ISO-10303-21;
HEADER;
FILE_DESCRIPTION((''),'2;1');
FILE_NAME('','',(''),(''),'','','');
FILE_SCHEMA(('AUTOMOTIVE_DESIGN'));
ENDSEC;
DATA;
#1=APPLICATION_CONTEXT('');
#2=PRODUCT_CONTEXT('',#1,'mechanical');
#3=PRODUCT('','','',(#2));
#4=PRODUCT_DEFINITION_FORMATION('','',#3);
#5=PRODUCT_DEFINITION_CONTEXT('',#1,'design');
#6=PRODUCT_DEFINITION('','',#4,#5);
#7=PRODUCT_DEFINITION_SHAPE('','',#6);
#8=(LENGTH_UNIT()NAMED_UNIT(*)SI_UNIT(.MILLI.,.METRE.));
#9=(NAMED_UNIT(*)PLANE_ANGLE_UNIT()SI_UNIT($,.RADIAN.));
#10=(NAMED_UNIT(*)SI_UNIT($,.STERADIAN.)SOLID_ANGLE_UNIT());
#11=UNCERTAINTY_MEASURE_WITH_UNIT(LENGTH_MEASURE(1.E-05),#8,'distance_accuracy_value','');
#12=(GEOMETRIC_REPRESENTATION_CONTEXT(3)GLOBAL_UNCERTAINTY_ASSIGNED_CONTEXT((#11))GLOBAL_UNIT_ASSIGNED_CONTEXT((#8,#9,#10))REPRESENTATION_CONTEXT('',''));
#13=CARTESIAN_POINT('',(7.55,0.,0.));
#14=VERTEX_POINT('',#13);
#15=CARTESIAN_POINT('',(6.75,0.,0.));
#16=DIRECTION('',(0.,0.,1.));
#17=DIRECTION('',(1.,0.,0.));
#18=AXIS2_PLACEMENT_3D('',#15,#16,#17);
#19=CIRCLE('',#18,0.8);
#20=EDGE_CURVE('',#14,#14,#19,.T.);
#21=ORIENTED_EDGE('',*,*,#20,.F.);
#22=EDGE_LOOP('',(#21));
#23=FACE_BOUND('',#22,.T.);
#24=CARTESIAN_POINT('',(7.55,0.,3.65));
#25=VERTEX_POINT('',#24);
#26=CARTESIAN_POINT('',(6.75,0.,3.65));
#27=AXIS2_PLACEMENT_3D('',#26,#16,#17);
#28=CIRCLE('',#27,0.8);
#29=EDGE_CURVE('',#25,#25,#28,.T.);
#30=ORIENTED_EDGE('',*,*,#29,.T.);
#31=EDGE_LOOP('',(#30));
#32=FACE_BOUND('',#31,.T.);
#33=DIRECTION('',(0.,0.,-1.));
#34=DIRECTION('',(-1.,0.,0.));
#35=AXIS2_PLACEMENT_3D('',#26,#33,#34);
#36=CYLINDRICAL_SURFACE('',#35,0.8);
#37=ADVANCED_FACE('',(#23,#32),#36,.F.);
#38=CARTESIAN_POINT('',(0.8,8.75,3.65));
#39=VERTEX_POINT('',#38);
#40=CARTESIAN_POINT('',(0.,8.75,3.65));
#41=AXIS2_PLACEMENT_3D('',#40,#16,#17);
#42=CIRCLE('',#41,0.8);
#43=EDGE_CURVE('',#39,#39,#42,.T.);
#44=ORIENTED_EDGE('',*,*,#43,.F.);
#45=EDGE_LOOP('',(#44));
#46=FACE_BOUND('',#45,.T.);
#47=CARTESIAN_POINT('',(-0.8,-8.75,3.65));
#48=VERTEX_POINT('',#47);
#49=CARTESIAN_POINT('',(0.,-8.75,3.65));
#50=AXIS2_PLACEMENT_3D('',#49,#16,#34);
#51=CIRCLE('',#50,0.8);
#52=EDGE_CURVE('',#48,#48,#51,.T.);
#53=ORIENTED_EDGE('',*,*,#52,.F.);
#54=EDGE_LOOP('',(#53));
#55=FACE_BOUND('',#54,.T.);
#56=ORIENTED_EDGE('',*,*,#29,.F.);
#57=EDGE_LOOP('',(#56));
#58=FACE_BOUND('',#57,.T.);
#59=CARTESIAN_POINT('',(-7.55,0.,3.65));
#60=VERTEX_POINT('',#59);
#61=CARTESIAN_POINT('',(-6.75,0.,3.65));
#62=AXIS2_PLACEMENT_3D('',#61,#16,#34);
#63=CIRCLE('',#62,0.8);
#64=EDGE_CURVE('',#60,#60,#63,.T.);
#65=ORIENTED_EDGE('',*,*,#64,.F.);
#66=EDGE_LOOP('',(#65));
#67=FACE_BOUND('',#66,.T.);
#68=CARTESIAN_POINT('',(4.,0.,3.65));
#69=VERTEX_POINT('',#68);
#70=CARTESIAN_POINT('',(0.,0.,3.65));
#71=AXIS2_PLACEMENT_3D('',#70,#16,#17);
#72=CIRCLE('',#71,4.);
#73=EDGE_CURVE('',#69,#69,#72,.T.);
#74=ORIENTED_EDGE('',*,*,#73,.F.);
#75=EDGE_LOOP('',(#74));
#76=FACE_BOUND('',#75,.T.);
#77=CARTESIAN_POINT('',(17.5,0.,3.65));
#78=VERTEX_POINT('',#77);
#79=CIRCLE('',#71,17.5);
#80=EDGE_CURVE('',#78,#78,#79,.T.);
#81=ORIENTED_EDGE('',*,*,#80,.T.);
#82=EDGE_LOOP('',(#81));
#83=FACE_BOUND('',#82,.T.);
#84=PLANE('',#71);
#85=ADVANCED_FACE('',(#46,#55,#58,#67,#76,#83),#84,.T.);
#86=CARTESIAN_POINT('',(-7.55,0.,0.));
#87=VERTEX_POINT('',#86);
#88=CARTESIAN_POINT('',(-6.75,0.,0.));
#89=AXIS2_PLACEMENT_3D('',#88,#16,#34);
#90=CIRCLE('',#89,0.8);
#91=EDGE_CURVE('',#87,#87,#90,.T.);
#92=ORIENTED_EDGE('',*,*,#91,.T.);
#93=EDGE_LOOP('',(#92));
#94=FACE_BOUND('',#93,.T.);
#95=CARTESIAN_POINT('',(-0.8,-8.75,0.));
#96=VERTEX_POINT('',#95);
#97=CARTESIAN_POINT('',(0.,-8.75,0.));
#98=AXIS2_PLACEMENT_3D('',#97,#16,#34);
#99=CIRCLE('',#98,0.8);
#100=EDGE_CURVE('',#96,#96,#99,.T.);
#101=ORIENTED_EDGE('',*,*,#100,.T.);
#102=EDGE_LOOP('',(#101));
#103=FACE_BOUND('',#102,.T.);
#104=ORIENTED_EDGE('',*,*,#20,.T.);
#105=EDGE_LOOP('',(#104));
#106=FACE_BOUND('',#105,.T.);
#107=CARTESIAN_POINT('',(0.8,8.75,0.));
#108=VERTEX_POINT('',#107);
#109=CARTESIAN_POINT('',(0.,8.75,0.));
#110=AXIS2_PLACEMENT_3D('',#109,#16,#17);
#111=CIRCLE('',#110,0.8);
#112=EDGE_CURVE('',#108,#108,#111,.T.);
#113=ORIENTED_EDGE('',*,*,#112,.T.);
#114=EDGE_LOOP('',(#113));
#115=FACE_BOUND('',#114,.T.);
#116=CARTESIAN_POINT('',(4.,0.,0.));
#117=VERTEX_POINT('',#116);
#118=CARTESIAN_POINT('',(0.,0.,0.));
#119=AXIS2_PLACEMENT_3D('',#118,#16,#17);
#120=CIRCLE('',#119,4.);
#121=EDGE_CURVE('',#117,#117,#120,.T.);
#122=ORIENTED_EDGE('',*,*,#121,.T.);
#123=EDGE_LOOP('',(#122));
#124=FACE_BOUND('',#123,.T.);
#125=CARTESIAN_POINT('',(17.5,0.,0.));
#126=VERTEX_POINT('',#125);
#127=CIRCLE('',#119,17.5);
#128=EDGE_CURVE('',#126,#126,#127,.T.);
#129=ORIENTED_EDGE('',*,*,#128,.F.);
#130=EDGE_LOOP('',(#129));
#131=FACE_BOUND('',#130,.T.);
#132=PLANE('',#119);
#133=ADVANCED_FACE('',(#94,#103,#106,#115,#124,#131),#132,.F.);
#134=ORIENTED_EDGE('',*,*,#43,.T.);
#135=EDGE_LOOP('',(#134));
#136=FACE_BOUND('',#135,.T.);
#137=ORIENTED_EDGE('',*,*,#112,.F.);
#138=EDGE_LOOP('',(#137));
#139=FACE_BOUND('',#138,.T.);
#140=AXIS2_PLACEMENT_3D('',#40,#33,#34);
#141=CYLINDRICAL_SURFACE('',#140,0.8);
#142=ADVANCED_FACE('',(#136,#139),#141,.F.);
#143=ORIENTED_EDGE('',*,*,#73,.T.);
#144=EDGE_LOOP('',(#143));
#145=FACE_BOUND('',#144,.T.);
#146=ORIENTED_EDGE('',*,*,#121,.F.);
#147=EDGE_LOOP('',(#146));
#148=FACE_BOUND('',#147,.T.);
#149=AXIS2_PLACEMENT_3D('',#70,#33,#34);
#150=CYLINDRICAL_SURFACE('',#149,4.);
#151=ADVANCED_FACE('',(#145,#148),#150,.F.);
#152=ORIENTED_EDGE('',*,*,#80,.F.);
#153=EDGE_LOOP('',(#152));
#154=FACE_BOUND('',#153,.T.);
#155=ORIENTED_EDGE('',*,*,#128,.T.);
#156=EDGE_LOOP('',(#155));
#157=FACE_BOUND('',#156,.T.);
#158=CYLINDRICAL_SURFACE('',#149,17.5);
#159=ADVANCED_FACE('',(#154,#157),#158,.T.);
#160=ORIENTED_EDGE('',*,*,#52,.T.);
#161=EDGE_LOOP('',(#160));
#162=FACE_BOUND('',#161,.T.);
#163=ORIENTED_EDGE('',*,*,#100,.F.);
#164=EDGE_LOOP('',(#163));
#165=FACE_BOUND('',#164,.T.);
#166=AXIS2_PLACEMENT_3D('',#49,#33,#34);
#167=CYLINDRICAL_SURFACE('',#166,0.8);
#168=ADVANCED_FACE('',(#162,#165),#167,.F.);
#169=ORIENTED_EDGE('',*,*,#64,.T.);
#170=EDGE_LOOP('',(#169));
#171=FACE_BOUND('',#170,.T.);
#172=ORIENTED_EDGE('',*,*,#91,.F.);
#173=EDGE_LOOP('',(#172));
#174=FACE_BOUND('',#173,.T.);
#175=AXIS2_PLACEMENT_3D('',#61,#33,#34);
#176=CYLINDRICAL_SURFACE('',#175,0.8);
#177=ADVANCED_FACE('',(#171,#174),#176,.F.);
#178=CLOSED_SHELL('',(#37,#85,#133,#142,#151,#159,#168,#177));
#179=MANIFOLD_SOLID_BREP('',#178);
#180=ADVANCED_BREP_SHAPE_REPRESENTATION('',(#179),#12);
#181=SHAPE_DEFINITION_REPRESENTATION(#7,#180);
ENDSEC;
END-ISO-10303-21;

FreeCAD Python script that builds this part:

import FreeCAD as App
import Part
import Sketcher
Q = App.Units.Quantity

doc = App.newDocument("Part")
body = doc.addObject("PartDesign::Body", "Body")

# Sketch on XY plane
sketch1 = doc.addObject("Sketcher::SketchObject", "Sketch")
body.addObject(sketch1)
sketch1.AttachmentSupport = (doc.XY_Plane, [""])
sketch1.MapMode = "FlatFace"
sketch1.addGeometry(Part.Circle(App.Vector(0, 0, 0), App.Vector(0, 0, 1), 17.5), False)
sketch1.addGeometry(Part.Circle(App.Vector(-6.8, 0, 0), App.Vector(0, 0, 1), 0.8), False)
sketch1.addGeometry(Part.Circle(App.Vector(0, -8.8, 0), App.Vector(0, 0, 1), 0.8), False)
sketch1.addGeometry(Part.Circle(App.Vector(0, 0, 0), App.Vector(0, 0, 1), 4), False)
sketch1.addGeometry(Part.Circle(App.Vector(6.8, 0, 0), App.Vector(0, 0, 1), 0.8), False)
sketch1.addGeometry(Part.Circle(App.Vector(0, 8.8, 0), App.Vector(0, 0, 1), 0.8), False)
sketch1.addConstraint(Sketcher.Constraint("Coincident", 0, 3, -1, 1))
sketch1.addConstraint(Sketcher.Constraint("Coincident", 3, 3, -1, 1))
sketch1.addConstraint(Sketcher.Constraint("Equal", 1, 2))
sketch1.addConstraint(Sketcher.Constraint("Equal", 2, 4))
sketch1.addConstraint(Sketcher.Constraint("Equal", 4, 5))
sketch1.addConstraint(Sketcher.Constraint("Symmetric", 1, 3, 4, 3, -1, 1))
sketch1.addConstraint(Sketcher.Constraint("Symmetric", 2, 3, 5, 3, -1, 1))
sketch1.addConstraint(Sketcher.Constraint("PointOnObject", 1, 3, -1))
sketch1.addConstraint(Sketcher.Constraint("PointOnObject", 2, 3, -2))
sketch1.addConstraint(Sketcher.Constraint("Diameter", 0, Q("35 mm")))
sketch1.addConstraint(Sketcher.Constraint("Diameter", 3, Q("8 mm")))
sketch1.addConstraint(Sketcher.Constraint("Diameter", 1, Q("1.6 mm")))
sketch1.addConstraint(Sketcher.Constraint("DistanceX", 1, 3, 4, 3, Q("13.5 mm")))
sketch1.addConstraint(Sketcher.Constraint("DistanceY", 2, 3, 5, 3, Q("17.5 mm")))
pad1 = doc.addObject("PartDesign::Pad", "Pad")
body.addObject(pad1)
pad1.Profile = sketch1
pad1.Length = 3.65

doc.recompute()
